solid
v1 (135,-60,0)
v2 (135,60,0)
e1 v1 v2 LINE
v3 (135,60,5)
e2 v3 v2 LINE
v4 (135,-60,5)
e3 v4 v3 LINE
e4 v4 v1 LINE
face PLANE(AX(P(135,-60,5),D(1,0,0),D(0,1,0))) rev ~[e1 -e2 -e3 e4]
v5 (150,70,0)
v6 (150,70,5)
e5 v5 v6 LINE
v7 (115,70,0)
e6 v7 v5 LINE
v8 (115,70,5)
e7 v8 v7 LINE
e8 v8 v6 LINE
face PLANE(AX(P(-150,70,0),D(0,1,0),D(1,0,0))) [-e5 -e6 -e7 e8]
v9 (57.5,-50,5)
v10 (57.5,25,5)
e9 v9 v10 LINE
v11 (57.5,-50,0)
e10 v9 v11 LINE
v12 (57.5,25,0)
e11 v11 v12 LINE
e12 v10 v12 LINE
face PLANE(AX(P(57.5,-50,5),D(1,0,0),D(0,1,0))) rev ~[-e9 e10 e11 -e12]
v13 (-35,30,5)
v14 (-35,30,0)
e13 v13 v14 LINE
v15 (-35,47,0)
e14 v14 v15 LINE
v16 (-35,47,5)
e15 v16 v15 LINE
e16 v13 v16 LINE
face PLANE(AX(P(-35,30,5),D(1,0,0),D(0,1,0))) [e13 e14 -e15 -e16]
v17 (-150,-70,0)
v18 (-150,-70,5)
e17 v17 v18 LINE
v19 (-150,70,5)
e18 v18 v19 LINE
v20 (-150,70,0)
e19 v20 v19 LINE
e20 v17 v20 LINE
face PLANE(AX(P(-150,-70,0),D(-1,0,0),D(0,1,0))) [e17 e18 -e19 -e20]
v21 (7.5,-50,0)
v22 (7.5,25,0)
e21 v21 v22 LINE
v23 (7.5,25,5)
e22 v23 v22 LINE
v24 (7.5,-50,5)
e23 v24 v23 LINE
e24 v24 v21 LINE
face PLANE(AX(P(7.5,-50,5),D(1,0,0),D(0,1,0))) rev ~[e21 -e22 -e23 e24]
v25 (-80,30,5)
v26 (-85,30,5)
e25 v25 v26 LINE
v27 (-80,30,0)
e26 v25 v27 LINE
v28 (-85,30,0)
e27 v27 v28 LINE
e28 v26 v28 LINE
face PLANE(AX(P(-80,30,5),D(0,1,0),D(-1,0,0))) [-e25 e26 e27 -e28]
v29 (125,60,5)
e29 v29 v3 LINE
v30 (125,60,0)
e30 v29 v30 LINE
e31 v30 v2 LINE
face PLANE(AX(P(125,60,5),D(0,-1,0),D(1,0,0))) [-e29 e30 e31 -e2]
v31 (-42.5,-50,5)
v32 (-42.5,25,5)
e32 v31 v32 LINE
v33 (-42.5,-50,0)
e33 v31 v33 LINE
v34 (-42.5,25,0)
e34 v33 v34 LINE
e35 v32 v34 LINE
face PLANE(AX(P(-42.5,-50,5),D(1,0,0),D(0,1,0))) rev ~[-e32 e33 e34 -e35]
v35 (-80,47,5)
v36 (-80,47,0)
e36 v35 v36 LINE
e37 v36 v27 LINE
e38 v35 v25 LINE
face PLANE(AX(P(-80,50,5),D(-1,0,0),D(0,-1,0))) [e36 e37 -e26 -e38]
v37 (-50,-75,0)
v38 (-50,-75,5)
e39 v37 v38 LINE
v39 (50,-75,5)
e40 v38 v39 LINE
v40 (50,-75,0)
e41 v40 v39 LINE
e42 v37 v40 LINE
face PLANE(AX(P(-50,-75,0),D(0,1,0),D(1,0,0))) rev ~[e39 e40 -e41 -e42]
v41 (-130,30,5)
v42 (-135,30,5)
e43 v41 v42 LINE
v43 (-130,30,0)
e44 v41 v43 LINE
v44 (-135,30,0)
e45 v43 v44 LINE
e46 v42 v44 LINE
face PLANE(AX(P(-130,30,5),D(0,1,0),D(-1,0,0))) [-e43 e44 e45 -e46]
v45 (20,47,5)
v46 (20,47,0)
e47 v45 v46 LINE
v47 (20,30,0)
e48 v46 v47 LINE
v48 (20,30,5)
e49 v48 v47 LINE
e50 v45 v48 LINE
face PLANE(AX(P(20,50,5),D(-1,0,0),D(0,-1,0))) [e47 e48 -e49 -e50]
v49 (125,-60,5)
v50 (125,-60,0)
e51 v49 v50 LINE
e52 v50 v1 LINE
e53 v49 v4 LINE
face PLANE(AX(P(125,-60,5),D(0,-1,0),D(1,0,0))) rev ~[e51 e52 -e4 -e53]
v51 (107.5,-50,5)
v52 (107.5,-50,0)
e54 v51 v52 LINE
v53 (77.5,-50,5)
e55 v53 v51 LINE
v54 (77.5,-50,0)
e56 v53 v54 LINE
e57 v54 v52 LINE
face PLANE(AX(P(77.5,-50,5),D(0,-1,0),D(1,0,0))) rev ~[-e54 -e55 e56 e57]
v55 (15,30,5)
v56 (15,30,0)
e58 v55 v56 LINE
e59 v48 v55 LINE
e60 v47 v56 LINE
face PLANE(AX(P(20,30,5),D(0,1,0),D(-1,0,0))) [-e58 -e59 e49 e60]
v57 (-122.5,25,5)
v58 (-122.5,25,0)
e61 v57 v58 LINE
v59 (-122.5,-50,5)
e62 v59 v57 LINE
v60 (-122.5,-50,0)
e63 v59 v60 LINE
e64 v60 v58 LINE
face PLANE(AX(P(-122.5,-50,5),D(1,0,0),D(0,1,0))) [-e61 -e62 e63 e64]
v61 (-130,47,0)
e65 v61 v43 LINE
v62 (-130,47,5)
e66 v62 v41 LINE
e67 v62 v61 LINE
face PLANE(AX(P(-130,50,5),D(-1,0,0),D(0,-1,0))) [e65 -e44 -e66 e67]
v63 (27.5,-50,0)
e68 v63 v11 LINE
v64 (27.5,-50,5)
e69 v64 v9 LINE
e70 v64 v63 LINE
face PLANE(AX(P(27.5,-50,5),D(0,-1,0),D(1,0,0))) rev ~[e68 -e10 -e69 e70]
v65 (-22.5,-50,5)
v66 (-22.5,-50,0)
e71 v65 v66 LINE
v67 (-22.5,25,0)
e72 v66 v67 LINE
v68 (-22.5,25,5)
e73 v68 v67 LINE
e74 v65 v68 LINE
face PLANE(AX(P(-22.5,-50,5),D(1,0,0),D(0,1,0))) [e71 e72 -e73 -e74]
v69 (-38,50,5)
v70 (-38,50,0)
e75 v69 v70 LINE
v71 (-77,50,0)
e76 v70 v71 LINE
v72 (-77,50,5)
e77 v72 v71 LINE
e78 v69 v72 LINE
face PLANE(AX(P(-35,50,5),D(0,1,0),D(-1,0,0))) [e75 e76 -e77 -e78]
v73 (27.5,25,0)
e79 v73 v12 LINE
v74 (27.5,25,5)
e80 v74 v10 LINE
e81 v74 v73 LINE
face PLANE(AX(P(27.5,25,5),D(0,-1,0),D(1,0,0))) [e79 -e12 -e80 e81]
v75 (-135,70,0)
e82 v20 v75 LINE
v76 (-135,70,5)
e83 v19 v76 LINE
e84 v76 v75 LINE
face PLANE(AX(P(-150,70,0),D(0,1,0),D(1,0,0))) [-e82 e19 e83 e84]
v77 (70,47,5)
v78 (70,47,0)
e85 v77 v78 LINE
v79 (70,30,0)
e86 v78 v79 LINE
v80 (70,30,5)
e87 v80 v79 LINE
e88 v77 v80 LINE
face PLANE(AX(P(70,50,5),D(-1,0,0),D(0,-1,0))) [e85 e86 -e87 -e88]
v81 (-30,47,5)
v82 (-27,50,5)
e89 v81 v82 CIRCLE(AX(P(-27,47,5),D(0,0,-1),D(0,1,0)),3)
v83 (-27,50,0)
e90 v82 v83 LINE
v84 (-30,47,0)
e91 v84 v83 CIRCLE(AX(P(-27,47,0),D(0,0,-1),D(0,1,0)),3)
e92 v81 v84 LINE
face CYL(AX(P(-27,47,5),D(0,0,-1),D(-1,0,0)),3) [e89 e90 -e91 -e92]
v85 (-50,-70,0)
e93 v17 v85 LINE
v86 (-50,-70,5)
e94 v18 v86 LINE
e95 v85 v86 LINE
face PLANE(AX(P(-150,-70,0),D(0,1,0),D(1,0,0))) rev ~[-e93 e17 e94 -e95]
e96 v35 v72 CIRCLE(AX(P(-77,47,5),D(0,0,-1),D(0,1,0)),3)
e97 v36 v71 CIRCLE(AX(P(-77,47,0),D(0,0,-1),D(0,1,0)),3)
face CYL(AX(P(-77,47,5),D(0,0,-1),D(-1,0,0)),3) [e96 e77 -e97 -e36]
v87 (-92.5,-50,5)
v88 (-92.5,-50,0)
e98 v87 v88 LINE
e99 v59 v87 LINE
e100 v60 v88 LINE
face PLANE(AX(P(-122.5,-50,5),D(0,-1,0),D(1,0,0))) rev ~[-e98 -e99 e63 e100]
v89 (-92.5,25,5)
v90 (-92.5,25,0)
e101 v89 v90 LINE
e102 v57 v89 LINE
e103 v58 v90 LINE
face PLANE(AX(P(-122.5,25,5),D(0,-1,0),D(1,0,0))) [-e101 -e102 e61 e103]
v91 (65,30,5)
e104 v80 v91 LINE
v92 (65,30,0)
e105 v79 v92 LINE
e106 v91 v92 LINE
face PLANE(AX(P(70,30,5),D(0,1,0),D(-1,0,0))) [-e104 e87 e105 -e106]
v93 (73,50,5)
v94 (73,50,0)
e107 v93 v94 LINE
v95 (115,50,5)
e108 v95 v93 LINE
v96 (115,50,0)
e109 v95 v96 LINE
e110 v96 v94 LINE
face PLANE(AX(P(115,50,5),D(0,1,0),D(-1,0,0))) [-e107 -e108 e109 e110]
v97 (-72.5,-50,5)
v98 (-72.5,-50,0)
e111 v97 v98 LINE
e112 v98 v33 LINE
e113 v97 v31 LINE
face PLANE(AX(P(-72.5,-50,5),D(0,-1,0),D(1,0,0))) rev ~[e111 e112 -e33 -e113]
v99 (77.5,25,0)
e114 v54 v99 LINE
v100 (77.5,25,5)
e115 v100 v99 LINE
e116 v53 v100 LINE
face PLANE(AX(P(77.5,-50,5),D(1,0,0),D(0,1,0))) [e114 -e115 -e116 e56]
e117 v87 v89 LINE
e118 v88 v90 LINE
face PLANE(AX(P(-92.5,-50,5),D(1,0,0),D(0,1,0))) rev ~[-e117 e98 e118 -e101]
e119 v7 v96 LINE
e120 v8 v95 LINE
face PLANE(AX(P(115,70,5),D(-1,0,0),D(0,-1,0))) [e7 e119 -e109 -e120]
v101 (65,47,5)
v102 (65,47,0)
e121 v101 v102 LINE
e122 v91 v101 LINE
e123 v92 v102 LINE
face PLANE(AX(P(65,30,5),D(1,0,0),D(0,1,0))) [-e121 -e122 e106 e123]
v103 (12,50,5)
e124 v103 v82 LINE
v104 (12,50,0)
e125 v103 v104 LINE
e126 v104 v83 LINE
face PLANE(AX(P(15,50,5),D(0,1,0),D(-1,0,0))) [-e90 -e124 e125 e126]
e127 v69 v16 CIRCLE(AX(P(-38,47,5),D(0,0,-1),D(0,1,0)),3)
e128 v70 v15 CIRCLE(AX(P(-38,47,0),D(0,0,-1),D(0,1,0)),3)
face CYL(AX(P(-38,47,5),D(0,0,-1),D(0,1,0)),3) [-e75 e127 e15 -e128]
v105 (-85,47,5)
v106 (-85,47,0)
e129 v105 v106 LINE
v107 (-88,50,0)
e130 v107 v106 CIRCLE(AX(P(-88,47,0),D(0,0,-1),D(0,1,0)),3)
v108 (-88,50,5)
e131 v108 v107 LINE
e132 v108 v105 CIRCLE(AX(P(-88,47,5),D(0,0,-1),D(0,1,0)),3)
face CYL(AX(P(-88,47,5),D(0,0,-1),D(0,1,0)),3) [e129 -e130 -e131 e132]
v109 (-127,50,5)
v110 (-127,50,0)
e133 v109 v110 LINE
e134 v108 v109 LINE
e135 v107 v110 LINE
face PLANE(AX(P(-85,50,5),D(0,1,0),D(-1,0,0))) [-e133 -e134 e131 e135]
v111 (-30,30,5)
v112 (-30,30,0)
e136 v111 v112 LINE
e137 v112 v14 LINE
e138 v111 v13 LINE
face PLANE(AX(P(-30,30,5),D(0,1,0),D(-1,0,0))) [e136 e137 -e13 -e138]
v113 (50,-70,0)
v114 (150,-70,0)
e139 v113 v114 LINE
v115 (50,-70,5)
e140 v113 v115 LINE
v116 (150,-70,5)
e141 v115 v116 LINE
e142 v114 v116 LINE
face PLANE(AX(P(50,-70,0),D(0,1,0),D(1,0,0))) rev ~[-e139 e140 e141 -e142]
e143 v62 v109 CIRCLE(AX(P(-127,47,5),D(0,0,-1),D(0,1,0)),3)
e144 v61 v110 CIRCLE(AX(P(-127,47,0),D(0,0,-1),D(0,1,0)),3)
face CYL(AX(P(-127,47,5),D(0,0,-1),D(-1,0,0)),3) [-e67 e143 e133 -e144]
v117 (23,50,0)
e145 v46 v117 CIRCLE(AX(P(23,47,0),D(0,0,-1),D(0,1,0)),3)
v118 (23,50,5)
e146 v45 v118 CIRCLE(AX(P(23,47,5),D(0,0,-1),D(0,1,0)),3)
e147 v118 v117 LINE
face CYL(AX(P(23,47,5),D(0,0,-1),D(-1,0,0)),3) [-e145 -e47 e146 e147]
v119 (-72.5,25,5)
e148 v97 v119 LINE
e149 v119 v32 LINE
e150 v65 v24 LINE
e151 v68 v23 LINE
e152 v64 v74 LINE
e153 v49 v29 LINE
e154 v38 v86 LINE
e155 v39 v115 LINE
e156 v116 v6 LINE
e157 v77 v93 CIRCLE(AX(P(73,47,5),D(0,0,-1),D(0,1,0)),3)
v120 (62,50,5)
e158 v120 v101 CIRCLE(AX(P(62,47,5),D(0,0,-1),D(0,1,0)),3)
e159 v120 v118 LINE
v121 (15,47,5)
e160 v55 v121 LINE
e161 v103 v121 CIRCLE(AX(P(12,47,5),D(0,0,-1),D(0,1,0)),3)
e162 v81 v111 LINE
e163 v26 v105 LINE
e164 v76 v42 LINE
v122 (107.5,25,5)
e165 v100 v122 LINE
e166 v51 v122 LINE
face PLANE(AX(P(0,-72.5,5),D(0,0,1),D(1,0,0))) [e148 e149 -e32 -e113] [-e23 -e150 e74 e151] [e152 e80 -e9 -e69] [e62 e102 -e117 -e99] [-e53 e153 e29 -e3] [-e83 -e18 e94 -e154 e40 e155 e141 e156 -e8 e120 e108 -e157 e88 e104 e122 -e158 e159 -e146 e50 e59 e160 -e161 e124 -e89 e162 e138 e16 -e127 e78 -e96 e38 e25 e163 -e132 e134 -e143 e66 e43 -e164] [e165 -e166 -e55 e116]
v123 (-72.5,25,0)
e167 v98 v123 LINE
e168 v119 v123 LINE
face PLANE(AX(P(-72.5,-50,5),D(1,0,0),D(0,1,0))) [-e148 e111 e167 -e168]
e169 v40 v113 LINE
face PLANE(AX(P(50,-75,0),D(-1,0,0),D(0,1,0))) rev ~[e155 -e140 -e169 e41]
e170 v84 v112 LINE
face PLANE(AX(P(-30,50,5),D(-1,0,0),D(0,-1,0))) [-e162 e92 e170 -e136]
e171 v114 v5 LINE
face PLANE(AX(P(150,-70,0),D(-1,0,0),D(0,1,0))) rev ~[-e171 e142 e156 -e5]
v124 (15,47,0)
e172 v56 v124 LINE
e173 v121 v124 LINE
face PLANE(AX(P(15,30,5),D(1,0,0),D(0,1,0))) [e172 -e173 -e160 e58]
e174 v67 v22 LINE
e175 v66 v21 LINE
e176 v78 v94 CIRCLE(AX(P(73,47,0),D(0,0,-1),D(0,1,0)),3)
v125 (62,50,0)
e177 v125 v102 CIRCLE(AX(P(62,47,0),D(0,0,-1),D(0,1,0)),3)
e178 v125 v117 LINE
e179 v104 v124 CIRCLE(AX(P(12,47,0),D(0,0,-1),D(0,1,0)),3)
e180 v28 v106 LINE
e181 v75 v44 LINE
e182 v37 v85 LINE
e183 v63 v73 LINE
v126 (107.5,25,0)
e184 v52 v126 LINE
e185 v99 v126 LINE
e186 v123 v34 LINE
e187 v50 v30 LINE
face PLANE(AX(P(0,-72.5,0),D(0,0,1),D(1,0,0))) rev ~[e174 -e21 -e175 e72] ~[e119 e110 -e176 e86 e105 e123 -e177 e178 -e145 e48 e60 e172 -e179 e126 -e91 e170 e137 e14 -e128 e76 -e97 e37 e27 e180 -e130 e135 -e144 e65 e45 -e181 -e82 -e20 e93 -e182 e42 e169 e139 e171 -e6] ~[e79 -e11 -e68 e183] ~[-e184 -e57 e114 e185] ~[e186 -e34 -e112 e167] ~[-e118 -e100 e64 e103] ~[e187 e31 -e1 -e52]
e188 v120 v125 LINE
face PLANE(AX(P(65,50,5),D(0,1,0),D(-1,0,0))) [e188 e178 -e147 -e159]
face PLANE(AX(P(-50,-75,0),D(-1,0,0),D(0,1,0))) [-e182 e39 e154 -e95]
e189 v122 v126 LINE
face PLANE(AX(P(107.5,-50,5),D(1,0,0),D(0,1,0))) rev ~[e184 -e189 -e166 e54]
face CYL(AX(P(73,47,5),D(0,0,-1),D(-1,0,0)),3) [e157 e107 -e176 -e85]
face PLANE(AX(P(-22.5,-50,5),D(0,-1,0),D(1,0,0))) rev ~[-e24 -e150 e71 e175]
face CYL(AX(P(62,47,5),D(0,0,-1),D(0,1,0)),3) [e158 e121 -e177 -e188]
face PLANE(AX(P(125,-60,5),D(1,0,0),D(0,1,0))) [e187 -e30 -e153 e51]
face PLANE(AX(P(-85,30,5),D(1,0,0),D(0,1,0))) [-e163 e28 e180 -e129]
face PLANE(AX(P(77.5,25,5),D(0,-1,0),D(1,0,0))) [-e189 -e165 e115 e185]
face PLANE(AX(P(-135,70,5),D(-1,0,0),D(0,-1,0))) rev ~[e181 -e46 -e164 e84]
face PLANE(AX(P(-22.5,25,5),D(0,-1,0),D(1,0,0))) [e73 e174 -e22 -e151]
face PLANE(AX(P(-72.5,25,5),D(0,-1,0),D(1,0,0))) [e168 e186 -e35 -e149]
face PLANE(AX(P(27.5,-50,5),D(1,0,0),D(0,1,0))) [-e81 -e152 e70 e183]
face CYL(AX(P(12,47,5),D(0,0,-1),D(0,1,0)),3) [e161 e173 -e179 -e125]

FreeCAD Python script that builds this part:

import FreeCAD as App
import Part
import Sketcher


def edges_at(feature, points):
    """Names of the edges that pass closest to the given points."""
    edges = feature.Shape.Edges
    near = lambda p: min(range(len(edges)), key=lambda i: edges[i].distToShape(Part.Vertex(*p))[0])
    return sorted({f"Edge{near(p) + 1}" for p in points})


def add_polygon(sketch, points):
    """Adds a closed chain of lines whose ends are joined by coincident constraints."""
    first, n = sketch.GeometryCount, len(points)
    for a, b in zip(points, points[1:] + points[:1]):
        sketch.addGeometry(Part.LineSegment(App.Vector(*a, 0), App.Vector(*b, 0)), False)
    for i in range(n):
        sketch.addConstraint(Sketcher.Constraint("Coincident", first + i, 2, first + (i + 1) % n, 1))

doc = App.newDocument("Part")
body = doc.addObject("PartDesign::Body", "Body")

sketch1 = body.newObject("Sketcher::SketchObject", "Sketch")
sketch1.AttachmentSupport = (doc.getObject("XY_Plane"), [""])
sketch1.MapMode = "FlatFace"
add_polygon(sketch1, [(-50, -70), (-50, -75), (50, -75), (50, -70), (150, -70), (150, 70), (-150, 70), (-150, -70)])
sketch1.addConstraint([
    Sketcher.Constraint("Vertical", 0),
    Sketcher.Constraint("Horizontal", 1),
    Sketcher.Constraint("Vertical", 2),
    Sketcher.Constraint("Horizontal", 3),
    Sketcher.Constraint("Vertical", 4),
    Sketcher.Constraint("Horizontal", 5),
    Sketcher.Constraint("Vertical", 6),
    Sketcher.Constraint("Horizontal", 7),
    Sketcher.Constraint("Symmetric", 3, 2, 5, 2, -1, 1),
    Sketcher.Constraint("Symmetric", 2, 2, 7, 2, -2),
    Sketcher.Constraint("Equal", 1, 3),
    Sketcher.Constraint("DistanceX", 1, 1, 1, 2, 100.0),
    Sketcher.Constraint("DistanceY", 0, 2, 0, 1, 5.0),
    Sketcher.Constraint("DistanceY", 4, 1, 4, 2, 140.0),
])
pad1 = body.newObject("PartDesign::Pad", "Pad")
pad1.Profile = sketch1
pad1.Length = 5

sketch2 = body.newObject("Sketcher::SketchObject", "Sketch001")
sketch2.AttachmentSupport = (doc.getObject("XY_Plane"), [""])
sketch2.MapMode = "FlatFace"
sketch2.AttachmentOffset = App.Placement(App.Vector(0, 0, 5), App.Rotation())
add_polygon(sketch2, [(115, 70), (-135, 70), (-135, 30), (-130, 30), (-130, 50), (-85, 50), (-85, 30), (-80, 30), (-80, 50), (-35, 50), (-35, 30), (-30, 30), (-30, 50), (15, 50), (15, 30), (20, 30), (20, 50), (65, 50), (65, 30), (70, 30), (70, 50), (115, 50)])
sketch2.addConstraint([
    Sketcher.Constraint("Horizontal", 0),
    Sketcher.Constraint("Vertical", 1),
    Sketcher.Constraint("Horizontal", 2),
    Sketcher.Constraint("Vertical", 3),
    Sketcher.Constraint("Horizontal", 4),
    Sketcher.Constraint("Vertical", 5),
    Sketcher.Constraint("Horizontal", 6),
    Sketcher.Constraint("Vertical", 7),
    Sketcher.Constraint("Horizontal", 8),
    Sketcher.Constraint("Vertical", 9),
    Sketcher.Constraint("Horizontal", 10),
    Sketcher.Constraint("Vertical", 11),
    Sketcher.Constraint("Horizontal", 12),
    Sketcher.Constraint("Vertical", 13),
    Sketcher.Constraint("Horizontal", 14),
    Sketcher.Constraint("Vertical", 15),
    Sketcher.Constraint("Horizontal", 16),
    Sketcher.Constraint("Vertical", 17),
    Sketcher.Constraint("Horizontal", 18),
    Sketcher.Constraint("Vertical", 19),
    Sketcher.Constraint("Horizontal", 20),
    Sketcher.Constraint("Vertical", 21),
    Sketcher.Constraint("Horizontal", 2, 2, 5, 2),
    Sketcher.Constraint("Horizontal", 4, 2, 7, 2),
    Sketcher.Constraint("Horizontal", 6, 2, 9, 2),
    Sketcher.Constraint("Horizontal", 8, 2, 11, 2),
    Sketcher.Constraint("Horizontal", 10, 2, 13, 2),
    Sketcher.Constraint("Horizontal", 12, 2, 15, 2),
    Sketcher.Constraint("Horizontal", 14, 2, 17, 2),
    Sketcher.Constraint("Horizontal", 16, 2, 19, 2),
    Sketcher.Constraint("Equal", 2, 6),
    Sketcher.Constraint("Equal", 4, 8),
    Sketcher.Constraint("Equal", 6, 10),
    Sketcher.Constraint("Equal", 8, 12),
    Sketcher.Constraint("Equal", 10, 14),
    Sketcher.Constraint("Equal", 12, 16),
    Sketcher.Constraint("Equal", 14, 18),
    Sketcher.Constraint("Equal", 16, 20),
    Sketcher.Constraint("Equal", 19, 21),
    Sketcher.Constraint("DistanceX", 0, 2, 0, 1, 250.0),
    Sketcher.Constraint("DistanceX", 2, 1, 2, 2, 5.0),
    Sketcher.Constraint("DistanceY", 1, 2, 1, 1, 40.0),
    Sketcher.Constraint("DistanceX", 0, 2, -1, 1, 135.0),
    Sketcher.Constraint("DistanceY", -1, 1, 0, 2, 70.0),
])
pocket1 = body.newObject("PartDesign::Pocket", "Pocket")
pocket1.Profile = sketch2
pocket1.Type = "ThroughAll"
doc.recompute()

fillet = body.newObject("PartDesign::Fillet", "Fillet")
fillet.Base = (pocket1, edges_at(pocket1, [
    (70, 50, 2.5),
    (65, 50, 2.5),
    (20, 50, 2.5),
    (15, 50, 2.5),
    (-30, 50, 2.5),
    (-35, 50, 2.5),
    (-80, 50, 2.5),
    (-85, 50, 2.5),
    (-130, 50, 2.5),
]))
fillet.Radius = 3

sketch3 = body.newObject("Sketcher::SketchObject", "Sketch002")
sketch3.AttachmentSupport = (doc.getObject("XY_Plane"), [""])
sketch3.MapMode = "FlatFace"
sketch3.AttachmentOffset = App.Placement(App.Vector(0, 0, 5), App.Rotation())
add_polygon(sketch3, [(-122, 25), (-122, -50), (-92, -50), (-92, 25)])
add_polygon(sketch3, [(-72, 25), (-72, -50), (-42, -50), (-42, 25)])
add_polygon(sketch3, [(-22, 25), (-22, -50), (8, -50), (8, 25)])
add_polygon(sketch3, [(28, 25), (28, -50), (58, -50), (58, 25)])
add_polygon(sketch3, [(78, 25), (78, -50), (108, -50), (108, 25)])
add_polygon(sketch3, [(125, 60), (125, -60), (135, -60), (135, 60)])
sketch3.addConstraint([
    Sketcher.Constraint("Vertical", 0),
    Sketcher.Constraint("Horizontal", 1),
    Sketcher.Constraint("Vertical", 2),
    Sketcher.Constraint("Horizontal", 3),
    Sketcher.Constraint("Vertical", 4),
    Sketcher.Constraint("Horizontal", 5),
    Sketcher.Constraint("Vertical", 6),
    Sketcher.Constraint("Horizontal", 7),
    Sketcher.Constraint("Vertical", 8),
    Sketcher.Constraint("Horizontal", 9),
    Sketcher.Constraint("Vertical", 10),
    Sketcher.Constraint("Horizontal", 11),
    Sketcher.Constraint("Vertical", 12),
    Sketcher.Constraint("Horizontal", 13),
    Sketcher.Constraint("Vertical", 14),
    Sketcher.Constraint("Horizontal", 15),
    Sketcher.Constraint("Vertical", 16),
    Sketcher.Constraint("Horizontal", 17),
    Sketcher.Constraint("Vertical", 18),
    Sketcher.Constraint("Horizontal", 19),
    Sketcher.Constraint("Vertical", 20),
    Sketcher.Constraint("Horizontal", 21),
    Sketcher.Constraint("Vertical", 22),
    Sketcher.Constraint("Horizontal", 23),
    Sketcher.Constraint("Horizontal", 1, 2, 4, 2),
    Sketcher.Constraint("Horizontal", 3, 2, 6, 2),
    Sketcher.Constraint("Horizontal", 5, 2, 8, 2),
    Sketcher.Constraint("Horizontal", 7, 2, 10, 2),
    Sketcher.Constraint("Horizontal", 9, 2, 12, 2),
    Sketcher.Constraint("Horizontal", 11, 2, 14, 2),
    Sketcher.Constraint("Horizontal", 13, 2, 16, 2),
    Sketcher.Constraint("Horizontal", 15, 2, 18, 2),
    Sketcher.Constraint("Equal", 3, 5),
    Sketcher.Constraint("Equal", 7, 9),
    Sketcher.Constraint("Equal", 11, 13),
    Sketcher.Constraint("Equal", 15, 17),
    Sketcher.Constraint("DistanceX", 1, 1, 1, 2, 30.0),
    Sketcher.Constraint("DistanceX", 21, 1, 21, 2, 10.0),
    Sketcher.Constraint("DistanceY", 0, 2, 0, 1, 75.0),
    Sketcher.Constraint("DistanceY", 20, 2, 20, 1, 120.0),
    Sketcher.Constraint("DistanceY", 0, 2, -1, 1, 50.0),
    Sketcher.Constraint("DistanceX", -1, 1, 20, 2, 125.0),
    Sketcher.Constraint("DistanceY", 20, 2, -1, 1, 60.0),
    Sketcher.Constraint("DistanceX", 1, 2, 4, 2, 20.0),
    Sketcher.Constraint("DistanceX", 5, 2, 8, 2, 20.0),
    Sketcher.Constraint("DistanceX", 9, 2, 12, 2, 20.0),
    Sketcher.Constraint("DistanceX", 13, 2, 16, 2, 20.0),
    Sketcher.Constraint("DistanceX", 0, 2, -1, 1, 122.5),
])
pocket2 = body.newObject("PartDesign::Pocket", "Pocket001")
pocket2.Profile = sketch3
pocket2.Type = "ThroughAll"

doc.recompute()
